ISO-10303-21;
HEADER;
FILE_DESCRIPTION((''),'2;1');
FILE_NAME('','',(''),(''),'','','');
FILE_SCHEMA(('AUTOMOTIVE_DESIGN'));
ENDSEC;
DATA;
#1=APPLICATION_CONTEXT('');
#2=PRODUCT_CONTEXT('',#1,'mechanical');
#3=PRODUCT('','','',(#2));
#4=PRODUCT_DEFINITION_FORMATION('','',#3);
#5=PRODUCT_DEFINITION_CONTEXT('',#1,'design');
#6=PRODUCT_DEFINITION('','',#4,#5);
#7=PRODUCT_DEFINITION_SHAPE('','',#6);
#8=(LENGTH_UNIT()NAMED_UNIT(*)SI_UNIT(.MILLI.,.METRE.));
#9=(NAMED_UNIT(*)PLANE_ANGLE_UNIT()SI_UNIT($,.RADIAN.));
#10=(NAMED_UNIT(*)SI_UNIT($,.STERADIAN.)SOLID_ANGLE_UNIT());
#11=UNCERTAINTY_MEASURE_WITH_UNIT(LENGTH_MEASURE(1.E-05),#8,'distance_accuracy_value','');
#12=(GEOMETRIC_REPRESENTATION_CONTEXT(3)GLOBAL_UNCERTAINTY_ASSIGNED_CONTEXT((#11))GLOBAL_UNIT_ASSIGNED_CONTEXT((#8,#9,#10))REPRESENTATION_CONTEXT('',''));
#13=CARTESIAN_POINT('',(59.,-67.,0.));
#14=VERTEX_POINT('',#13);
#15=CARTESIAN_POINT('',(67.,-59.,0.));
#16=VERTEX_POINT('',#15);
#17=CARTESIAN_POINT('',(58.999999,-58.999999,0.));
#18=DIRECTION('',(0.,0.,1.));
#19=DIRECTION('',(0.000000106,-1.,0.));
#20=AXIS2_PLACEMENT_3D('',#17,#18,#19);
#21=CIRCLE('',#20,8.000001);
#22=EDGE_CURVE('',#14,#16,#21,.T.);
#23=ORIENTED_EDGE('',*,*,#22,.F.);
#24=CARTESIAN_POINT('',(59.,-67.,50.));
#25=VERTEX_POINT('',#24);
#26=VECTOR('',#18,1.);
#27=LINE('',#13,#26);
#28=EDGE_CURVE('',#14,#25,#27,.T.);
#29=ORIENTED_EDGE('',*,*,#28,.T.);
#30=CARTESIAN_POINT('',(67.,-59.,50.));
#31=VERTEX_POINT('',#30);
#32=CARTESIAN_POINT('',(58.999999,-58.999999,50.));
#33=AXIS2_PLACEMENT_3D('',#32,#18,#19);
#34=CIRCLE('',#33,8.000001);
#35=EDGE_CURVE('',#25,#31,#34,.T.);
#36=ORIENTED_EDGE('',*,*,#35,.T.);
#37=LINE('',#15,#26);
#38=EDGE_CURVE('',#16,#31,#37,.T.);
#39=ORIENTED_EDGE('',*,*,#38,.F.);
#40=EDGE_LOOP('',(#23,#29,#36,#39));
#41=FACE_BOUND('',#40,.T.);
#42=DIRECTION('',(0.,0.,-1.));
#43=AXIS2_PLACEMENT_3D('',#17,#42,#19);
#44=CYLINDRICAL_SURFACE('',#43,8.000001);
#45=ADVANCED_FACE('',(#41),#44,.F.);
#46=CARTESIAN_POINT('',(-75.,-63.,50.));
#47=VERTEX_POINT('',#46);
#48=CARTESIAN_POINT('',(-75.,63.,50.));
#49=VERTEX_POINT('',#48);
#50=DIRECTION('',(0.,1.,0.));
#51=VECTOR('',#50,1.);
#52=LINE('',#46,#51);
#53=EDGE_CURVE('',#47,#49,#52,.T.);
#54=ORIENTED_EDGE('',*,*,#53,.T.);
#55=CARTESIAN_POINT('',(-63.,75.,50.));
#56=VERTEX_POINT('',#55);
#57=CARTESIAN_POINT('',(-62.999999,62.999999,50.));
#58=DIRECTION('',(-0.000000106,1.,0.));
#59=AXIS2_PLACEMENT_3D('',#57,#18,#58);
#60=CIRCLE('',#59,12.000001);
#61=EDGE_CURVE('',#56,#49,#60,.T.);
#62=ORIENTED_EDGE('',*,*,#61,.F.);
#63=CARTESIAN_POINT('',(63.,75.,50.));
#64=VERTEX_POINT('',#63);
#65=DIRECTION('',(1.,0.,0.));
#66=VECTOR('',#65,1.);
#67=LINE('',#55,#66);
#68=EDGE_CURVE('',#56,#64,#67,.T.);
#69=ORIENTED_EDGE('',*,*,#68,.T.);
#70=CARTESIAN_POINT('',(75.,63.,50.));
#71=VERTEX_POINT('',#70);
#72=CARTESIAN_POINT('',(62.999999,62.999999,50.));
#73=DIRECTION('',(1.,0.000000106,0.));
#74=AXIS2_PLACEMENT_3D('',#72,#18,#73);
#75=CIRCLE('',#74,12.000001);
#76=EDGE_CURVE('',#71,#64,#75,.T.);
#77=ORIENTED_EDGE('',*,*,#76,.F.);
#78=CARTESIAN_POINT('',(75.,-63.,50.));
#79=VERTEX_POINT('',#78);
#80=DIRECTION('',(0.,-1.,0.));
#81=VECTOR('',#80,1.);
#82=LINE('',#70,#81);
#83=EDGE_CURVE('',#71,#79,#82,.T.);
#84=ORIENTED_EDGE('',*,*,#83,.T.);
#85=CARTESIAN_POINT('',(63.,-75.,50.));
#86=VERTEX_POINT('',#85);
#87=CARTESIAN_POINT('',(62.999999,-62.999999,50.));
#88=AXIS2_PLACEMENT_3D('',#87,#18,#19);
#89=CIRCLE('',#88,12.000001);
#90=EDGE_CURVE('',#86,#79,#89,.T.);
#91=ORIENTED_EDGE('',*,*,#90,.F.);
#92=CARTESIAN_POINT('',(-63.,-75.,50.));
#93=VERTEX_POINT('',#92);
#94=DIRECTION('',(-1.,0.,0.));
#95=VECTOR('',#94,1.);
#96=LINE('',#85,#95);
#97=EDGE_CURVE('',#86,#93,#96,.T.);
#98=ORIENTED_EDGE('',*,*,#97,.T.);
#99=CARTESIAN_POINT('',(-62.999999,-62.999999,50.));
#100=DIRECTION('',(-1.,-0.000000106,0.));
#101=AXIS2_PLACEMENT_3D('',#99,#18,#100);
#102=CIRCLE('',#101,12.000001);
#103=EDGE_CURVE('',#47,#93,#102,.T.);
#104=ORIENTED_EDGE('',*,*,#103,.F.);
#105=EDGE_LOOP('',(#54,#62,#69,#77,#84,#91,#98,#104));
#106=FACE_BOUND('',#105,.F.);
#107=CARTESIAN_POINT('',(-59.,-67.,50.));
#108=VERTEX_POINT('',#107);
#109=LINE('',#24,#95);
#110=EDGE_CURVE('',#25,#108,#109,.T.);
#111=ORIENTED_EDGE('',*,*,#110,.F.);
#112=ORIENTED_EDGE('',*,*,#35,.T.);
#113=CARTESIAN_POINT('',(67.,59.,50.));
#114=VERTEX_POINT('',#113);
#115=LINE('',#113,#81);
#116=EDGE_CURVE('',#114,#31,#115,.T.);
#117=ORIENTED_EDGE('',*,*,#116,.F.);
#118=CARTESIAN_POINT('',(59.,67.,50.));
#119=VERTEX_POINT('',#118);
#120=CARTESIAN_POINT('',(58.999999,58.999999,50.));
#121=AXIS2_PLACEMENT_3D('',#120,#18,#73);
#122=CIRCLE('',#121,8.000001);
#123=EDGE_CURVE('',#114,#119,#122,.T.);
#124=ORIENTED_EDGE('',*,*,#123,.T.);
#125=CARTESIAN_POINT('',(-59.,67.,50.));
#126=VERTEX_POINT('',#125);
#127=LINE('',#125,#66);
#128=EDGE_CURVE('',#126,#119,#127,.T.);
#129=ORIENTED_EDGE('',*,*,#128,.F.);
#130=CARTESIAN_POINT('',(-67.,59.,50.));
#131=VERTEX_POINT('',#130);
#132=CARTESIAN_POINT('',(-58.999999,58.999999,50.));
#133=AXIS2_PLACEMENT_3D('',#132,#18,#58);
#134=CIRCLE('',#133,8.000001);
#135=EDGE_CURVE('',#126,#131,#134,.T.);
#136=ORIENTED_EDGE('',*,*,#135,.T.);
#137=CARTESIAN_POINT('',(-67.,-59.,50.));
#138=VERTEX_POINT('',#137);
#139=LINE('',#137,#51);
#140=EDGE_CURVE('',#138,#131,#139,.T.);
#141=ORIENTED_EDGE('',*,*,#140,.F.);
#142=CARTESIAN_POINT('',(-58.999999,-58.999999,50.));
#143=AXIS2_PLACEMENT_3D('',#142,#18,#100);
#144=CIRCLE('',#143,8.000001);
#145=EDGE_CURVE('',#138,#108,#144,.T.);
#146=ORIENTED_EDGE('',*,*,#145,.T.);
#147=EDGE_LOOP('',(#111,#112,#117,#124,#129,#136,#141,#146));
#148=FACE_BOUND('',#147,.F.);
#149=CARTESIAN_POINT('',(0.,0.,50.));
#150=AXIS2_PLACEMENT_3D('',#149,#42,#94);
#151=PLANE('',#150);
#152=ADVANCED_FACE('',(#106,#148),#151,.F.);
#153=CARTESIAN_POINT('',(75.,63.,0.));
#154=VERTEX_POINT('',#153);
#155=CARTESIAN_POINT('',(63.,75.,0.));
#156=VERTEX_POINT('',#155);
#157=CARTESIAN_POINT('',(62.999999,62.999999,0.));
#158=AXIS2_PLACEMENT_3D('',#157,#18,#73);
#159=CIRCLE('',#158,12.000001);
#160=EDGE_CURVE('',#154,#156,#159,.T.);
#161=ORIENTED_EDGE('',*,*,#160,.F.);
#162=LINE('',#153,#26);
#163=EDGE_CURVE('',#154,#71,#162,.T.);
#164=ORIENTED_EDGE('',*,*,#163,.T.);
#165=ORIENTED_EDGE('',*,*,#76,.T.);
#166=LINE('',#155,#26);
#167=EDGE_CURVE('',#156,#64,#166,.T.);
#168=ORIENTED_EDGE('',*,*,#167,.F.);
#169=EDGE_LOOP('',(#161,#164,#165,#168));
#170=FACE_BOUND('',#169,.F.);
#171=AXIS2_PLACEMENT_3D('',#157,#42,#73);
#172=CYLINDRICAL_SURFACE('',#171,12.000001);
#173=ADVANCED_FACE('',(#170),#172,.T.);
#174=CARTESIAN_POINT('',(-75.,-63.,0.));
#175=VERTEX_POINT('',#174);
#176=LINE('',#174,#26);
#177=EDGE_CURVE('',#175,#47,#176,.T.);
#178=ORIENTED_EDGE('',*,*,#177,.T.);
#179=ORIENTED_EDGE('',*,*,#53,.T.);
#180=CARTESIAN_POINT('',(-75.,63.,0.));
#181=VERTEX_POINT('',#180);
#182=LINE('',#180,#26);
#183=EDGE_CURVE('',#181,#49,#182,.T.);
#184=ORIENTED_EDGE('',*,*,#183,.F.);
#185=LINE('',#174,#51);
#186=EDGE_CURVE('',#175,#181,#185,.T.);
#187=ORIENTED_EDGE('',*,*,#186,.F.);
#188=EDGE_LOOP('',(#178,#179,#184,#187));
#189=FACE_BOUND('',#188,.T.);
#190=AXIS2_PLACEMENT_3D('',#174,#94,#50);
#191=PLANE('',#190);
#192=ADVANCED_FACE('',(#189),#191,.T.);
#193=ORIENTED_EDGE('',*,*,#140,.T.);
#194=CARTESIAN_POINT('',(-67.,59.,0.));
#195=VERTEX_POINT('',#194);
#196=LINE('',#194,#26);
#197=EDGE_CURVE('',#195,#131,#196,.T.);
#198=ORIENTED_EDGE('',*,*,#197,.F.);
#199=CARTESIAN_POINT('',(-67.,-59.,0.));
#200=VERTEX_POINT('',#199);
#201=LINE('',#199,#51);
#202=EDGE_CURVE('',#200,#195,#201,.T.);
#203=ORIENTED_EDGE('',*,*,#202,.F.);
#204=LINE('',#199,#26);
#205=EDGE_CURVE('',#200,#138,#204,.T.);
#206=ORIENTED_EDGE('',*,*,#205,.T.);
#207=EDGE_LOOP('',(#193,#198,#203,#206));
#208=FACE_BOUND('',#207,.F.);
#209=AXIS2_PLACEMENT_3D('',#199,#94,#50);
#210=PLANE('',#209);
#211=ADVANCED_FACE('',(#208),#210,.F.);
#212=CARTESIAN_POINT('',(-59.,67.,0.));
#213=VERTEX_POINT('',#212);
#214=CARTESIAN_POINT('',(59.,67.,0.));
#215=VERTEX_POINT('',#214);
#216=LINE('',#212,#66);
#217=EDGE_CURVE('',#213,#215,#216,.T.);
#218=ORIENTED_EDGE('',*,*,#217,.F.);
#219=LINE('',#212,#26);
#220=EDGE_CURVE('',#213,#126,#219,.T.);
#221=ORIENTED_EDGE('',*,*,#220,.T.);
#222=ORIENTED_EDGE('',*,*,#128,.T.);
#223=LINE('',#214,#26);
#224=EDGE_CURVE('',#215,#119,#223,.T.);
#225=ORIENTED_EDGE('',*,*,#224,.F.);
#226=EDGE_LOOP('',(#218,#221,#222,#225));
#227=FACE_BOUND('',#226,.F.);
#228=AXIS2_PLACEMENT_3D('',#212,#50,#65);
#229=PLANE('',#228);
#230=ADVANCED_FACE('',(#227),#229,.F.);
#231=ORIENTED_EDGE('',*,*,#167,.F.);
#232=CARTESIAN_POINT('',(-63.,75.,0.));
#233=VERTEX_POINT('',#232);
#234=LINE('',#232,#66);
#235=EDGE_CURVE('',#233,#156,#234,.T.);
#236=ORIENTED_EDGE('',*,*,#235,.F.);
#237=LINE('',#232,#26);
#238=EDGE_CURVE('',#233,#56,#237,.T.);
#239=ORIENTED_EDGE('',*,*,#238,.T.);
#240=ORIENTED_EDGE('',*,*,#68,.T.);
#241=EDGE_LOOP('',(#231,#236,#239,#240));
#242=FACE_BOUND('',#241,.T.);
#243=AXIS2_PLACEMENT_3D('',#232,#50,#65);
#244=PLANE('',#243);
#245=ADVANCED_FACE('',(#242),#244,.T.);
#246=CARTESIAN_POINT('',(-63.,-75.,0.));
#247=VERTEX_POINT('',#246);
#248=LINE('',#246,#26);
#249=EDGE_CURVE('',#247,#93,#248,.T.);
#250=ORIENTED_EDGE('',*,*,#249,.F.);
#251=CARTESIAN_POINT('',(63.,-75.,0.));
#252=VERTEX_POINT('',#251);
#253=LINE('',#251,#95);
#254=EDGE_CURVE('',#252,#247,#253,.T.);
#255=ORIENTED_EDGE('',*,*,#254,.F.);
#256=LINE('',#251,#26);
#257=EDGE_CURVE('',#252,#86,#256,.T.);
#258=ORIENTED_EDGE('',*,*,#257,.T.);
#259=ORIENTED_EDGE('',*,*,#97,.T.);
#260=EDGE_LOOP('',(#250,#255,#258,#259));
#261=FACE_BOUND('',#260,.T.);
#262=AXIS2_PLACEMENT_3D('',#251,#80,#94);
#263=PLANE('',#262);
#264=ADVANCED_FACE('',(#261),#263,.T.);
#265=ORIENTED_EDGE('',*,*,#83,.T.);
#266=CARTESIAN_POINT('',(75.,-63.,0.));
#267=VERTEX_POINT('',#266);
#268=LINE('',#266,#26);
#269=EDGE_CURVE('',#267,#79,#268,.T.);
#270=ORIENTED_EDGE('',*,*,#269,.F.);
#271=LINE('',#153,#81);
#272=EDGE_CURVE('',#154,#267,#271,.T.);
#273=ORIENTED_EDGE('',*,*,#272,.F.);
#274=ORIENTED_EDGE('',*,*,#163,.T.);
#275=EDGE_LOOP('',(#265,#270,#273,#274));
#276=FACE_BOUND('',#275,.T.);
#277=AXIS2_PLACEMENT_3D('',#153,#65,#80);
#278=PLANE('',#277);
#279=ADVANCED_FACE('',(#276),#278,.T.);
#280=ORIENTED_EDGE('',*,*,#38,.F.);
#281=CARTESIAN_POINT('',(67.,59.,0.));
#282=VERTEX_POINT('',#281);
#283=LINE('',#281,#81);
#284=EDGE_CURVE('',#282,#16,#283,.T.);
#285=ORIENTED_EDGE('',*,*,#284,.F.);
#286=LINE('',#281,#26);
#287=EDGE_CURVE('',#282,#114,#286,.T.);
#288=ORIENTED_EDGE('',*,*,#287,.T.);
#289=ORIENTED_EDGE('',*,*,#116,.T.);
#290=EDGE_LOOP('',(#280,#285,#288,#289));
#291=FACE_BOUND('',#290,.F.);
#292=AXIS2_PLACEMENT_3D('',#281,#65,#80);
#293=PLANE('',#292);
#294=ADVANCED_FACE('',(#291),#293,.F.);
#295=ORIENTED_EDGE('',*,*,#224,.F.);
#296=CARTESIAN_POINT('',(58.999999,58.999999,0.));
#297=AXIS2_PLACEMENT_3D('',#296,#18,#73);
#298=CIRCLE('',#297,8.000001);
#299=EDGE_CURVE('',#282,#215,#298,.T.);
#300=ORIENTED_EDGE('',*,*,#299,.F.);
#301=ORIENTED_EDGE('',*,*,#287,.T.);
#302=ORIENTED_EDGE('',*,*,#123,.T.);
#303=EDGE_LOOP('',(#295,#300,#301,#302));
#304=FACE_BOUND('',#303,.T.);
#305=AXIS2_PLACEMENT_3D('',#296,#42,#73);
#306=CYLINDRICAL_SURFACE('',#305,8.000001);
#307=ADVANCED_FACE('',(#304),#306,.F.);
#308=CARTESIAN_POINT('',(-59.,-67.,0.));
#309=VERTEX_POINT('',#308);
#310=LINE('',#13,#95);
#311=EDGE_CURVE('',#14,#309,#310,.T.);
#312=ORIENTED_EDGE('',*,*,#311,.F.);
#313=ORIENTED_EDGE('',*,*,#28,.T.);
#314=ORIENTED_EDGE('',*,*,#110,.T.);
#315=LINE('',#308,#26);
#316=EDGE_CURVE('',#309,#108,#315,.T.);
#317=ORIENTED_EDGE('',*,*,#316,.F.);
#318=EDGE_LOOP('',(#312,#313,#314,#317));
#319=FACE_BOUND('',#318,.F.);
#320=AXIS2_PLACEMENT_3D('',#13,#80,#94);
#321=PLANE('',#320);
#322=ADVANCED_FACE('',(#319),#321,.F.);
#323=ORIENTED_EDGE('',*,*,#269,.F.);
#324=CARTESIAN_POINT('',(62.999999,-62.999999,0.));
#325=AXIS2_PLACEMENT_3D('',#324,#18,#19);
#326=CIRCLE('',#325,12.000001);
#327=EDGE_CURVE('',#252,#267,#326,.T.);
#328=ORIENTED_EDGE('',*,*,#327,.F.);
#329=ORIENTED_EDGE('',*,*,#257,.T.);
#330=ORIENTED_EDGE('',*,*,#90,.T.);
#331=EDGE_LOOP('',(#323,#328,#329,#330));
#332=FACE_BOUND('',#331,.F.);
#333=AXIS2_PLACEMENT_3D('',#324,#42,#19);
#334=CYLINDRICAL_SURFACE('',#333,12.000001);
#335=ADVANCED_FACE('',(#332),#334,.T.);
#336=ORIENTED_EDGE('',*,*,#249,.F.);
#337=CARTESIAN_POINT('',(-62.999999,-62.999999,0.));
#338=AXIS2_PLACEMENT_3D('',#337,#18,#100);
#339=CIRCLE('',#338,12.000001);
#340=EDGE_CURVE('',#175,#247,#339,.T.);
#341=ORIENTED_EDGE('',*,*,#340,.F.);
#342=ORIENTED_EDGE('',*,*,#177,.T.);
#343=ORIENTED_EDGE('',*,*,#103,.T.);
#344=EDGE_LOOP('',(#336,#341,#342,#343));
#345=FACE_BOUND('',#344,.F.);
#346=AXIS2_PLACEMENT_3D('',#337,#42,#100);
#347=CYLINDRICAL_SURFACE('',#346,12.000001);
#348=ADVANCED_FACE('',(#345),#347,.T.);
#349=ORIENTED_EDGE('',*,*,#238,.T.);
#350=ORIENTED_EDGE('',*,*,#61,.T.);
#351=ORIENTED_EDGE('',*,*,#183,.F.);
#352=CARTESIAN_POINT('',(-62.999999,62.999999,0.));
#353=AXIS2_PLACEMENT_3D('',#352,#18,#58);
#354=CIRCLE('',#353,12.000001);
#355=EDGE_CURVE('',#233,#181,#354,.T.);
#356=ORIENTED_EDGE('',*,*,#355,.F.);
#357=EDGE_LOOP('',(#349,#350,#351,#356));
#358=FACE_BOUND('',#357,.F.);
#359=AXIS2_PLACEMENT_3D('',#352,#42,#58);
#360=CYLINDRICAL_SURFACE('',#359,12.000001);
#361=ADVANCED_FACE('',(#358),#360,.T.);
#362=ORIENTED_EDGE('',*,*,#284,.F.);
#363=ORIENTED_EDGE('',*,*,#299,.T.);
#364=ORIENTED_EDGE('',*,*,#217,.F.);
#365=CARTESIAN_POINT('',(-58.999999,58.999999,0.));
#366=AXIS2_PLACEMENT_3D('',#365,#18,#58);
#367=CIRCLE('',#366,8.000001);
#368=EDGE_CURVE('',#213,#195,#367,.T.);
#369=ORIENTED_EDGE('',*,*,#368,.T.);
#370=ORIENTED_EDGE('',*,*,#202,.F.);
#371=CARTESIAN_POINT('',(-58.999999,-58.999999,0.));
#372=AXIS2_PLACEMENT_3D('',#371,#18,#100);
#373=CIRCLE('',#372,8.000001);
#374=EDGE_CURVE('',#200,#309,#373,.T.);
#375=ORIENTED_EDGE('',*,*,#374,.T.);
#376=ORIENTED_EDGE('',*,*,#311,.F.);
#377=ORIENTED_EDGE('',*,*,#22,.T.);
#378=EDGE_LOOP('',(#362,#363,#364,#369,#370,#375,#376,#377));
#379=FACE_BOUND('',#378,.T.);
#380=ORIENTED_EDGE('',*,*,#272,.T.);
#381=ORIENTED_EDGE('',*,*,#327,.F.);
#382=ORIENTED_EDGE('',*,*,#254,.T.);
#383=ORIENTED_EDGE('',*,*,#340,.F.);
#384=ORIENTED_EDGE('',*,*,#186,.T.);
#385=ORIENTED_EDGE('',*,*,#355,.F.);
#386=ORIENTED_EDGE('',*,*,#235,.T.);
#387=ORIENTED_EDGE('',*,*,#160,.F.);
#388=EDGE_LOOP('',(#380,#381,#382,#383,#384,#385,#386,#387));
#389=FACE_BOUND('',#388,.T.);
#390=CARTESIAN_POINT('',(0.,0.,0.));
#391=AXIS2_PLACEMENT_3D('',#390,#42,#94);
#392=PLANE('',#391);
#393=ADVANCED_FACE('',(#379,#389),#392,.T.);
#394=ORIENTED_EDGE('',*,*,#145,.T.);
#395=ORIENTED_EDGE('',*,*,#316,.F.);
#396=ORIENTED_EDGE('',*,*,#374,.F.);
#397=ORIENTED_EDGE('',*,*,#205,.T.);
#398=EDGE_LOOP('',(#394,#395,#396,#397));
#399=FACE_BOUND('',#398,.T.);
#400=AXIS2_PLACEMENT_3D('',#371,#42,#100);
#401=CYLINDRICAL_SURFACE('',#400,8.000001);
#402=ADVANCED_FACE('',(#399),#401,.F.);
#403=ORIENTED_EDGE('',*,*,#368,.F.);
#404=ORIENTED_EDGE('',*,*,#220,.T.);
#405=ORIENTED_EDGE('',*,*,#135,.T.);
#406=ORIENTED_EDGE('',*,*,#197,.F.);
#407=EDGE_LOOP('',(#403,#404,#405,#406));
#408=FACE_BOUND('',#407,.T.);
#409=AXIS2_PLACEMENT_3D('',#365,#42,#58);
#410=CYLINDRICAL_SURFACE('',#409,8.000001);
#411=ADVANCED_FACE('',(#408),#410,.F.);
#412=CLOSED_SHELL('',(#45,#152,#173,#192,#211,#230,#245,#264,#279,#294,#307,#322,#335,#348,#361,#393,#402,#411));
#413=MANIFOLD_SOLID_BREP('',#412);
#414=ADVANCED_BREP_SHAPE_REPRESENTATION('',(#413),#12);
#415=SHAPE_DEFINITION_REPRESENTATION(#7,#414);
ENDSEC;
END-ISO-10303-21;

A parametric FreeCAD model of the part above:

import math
import FreeCAD as App
import Part
import Sketcher
from FreeCAD import Vector
Q = App.Units.Quantity

doc = App.newDocument("Part")
params = doc.addObject("Spreadsheet::Sheet", "Params")
for row, (alias, value) in enumerate([
    ("sketch1_radius", "12.000001 mm"),
    ("sketch1_radius2", "8.000001 mm"),
    ("sketch1_width", "126 mm"),
    ("sketch1_width2", "118 mm"),
    ("pad1_length", "50 mm"),
], start=1):
    params.set(f"A{row}", alias)
    params.set(f"B{row}", "=" + value)
    params.setAlias(f"B{row}", alias)

body = doc.addObject("PartDesign::Body", "Body")

# Sketch on XY plane
sketch1 = doc.addObject("Sketcher::SketchObject", "Sketch")
body.addObject(sketch1)
sketch1.AttachmentSupport = (doc.XY_Plane, [""])
sketch1.MapMode = "FlatFace"
sketch1.addGeometry(Part.LineSegment(Vector(63, 75, 0), Vector(-63, 75, 0)), False)
sketch1.addGeometry(Part.ArcOfCircle(Part.Circle(Vector(-62.999999, 62.999999, 0), Vector(0, 0, 1), 12.000001), math.radians(90.000006), math.radians(179.999994)), False)
sketch1.addGeometry(Part.LineSegment(Vector(-75, 63, 0), Vector(-75, -63, 0)), False)
sketch1.addGeometry(Part.ArcOfCircle(Part.Circle(Vector(-62.999999, -62.999999, 0), Vector(0, 0, 1), 12.000001), math.radians(-179.999994), math.radians(-90.000006)), False)
sketch1.addGeometry(Part.LineSegment(Vector(-63, -75, 0), Vector(63, -75, 0)), False)
sketch1.addGeometry(Part.ArcOfCircle(Part.Circle(Vector(62.999999, -62.999999, 0), Vector(0, 0, 1), 12.000001), math.radians(-89.999994), math.radians(-0.000006)), False)
sketch1.addGeometry(Part.LineSegment(Vector(75, -63, 0), Vector(75, 63, 0)), False)
sketch1.addGeometry(Part.ArcOfCircle(Part.Circle(Vector(62.999999, 62.999999, 0), Vector(0, 0, 1), 12.000001), math.radians(0.000006), math.radians(89.999994)), False)
sketch1.addGeometry(Part.LineSegment(Vector(-59, 67, 0), Vector(59, 67, 0)), False)
sketch1.addGeometry(Part.ArcOfCircle(Part.Circle(Vector(58.999999, 58.999999, 0), Vector(0, 0, 1), 8.000001), math.radians(0.000006), math.radians(89.999994)), False)
sketch1.addGeometry(Part.LineSegment(Vector(67, 59, 0), Vector(67, -59, 0)), False)
sketch1.addGeometry(Part.ArcOfCircle(Part.Circle(Vector(58.999999, -58.999999, 0), Vector(0, 0, 1), 8.000001), math.radians(-89.999994), math.radians(-0.000006)), False)
sketch1.addGeometry(Part.LineSegment(Vector(59, -67, 0), Vector(-59, -67, 0)), False)
sketch1.addGeometry(Part.ArcOfCircle(Part.Circle(Vector(-58.999999, -58.999999, 0), Vector(0, 0, 1), 8.000001), math.radians(-179.999994), math.radians(-90.000006)), False)
sketch1.addGeometry(Part.LineSegment(Vector(-67, -59, 0), Vector(-67, 59, 0)), False)
sketch1.addGeometry(Part.ArcOfCircle(Part.Circle(Vector(-58.999999, 58.999999, 0), Vector(0, 0, 1), 8.000001), math.radians(90.000006), math.radians(179.999994)), False)
sketch1.addConstraint(Sketcher.Constraint("Tangent", 0, 2, 1, 1))
sketch1.addConstraint(Sketcher.Constraint("Tangent", 1, 2, 2, 1))
sketch1.addConstraint(Sketcher.Constraint("Tangent", 2, 2, 3, 1))
sketch1.addConstraint(Sketcher.Constraint("Tangent", 3, 2, 4, 1))
sketch1.addConstraint(Sketcher.Constraint("Tangent", 4, 2, 5, 1))
sketch1.addConstraint(Sketcher.Constraint("Tangent", 5, 2, 6, 1))
sketch1.addConstraint(Sketcher.Constraint("Tangent", 6, 2, 7, 1))
sketch1.addConstraint(Sketcher.Constraint("Tangent", 7, 2, 0, 1))
sketch1.addConstraint(Sketcher.Constraint("Tangent", 8, 2, 9, 2))
sketch1.addConstraint(Sketcher.Constraint("Tangent", 9, 1, 10, 1))
sketch1.addConstraint(Sketcher.Constraint("Tangent", 10, 2, 11, 2))
sketch1.addConstraint(Sketcher.Constraint("Tangent", 11, 1, 12, 1))
sketch1.addConstraint(Sketcher.Constraint("Tangent", 12, 2, 13, 2))
sketch1.addConstraint(Sketcher.Constraint("Tangent", 13, 1, 14, 1))
sketch1.addConstraint(Sketcher.Constraint("Tangent", 14, 2, 15, 2))
sketch1.addConstraint(Sketcher.Constraint("Tangent", 15, 1, 8, 1))
sketch1.addConstraint(Sketcher.Constraint("Horizontal", 0))
sketch1.addConstraint(Sketcher.Constraint("Vertical", 2))
sketch1.addConstraint(Sketcher.Constraint("Horizontal", 4))
sketch1.addConstraint(Sketcher.Constraint("Vertical", 6))
sketch1.addConstraint(Sketcher.Constraint("Horizontal", 8))
sketch1.addConstraint(Sketcher.Constraint("Vertical", 10))
sketch1.addConstraint(Sketcher.Constraint("Horizontal", 12))
sketch1.addConstraint(Sketcher.Constraint("Vertical", 14))
sketch1.addConstraint(Sketcher.Constraint("Equal", 1, 3))
sketch1.addConstraint(Sketcher.Constraint("Equal", 3, 5))
sketch1.addConstraint(Sketcher.Constraint("Equal", 5, 7))
sketch1.addConstraint(Sketcher.Constraint("Equal", 9, 11))
sketch1.addConstraint(Sketcher.Constraint("Equal", 11, 13))
sketch1.addConstraint(Sketcher.Constraint("Equal", 13, 15))
sketch1.addConstraint(Sketcher.Constraint("Symmetric", 1, 3, 5, 3, -1, 1))
sketch1.addConstraint(Sketcher.Constraint("Symmetric", 9, 3, 13, 3, -1, 1))
sketch1.addConstraint(Sketcher.Constraint("Equal", 4, 2))
sketch1.addConstraint(Sketcher.Constraint("Equal", 12, 10))
sketch1.addConstraint(Sketcher.Constraint("Radius", 1, Q("12.000001 mm")))
sketch1.addConstraint(Sketcher.Constraint("Radius", 9, Q("8.000001 mm")))
sketch1.addConstraint(Sketcher.Constraint("DistanceX", 0, 2, 0, 1, Q("126 mm")))
sketch1.addConstraint(Sketcher.Constraint("DistanceX", 8, 1, 8, 2, Q("118 mm")))
sketch1.setExpression("Constraints[34]", "Params.sketch1_radius")
sketch1.setExpression("Constraints[35]", "Params.sketch1_radius2")
sketch1.setExpression("Constraints[36]", "Params.sketch1_width")
sketch1.setExpression("Constraints[37]", "Params.sketch1_width2")
pad1 = doc.addObject("PartDesign::Pad", "Pad")
body.addObject(pad1)
pad1.Profile = sketch1
pad1.setExpression("Length", "Params.pad1_length")

doc.recompute()
